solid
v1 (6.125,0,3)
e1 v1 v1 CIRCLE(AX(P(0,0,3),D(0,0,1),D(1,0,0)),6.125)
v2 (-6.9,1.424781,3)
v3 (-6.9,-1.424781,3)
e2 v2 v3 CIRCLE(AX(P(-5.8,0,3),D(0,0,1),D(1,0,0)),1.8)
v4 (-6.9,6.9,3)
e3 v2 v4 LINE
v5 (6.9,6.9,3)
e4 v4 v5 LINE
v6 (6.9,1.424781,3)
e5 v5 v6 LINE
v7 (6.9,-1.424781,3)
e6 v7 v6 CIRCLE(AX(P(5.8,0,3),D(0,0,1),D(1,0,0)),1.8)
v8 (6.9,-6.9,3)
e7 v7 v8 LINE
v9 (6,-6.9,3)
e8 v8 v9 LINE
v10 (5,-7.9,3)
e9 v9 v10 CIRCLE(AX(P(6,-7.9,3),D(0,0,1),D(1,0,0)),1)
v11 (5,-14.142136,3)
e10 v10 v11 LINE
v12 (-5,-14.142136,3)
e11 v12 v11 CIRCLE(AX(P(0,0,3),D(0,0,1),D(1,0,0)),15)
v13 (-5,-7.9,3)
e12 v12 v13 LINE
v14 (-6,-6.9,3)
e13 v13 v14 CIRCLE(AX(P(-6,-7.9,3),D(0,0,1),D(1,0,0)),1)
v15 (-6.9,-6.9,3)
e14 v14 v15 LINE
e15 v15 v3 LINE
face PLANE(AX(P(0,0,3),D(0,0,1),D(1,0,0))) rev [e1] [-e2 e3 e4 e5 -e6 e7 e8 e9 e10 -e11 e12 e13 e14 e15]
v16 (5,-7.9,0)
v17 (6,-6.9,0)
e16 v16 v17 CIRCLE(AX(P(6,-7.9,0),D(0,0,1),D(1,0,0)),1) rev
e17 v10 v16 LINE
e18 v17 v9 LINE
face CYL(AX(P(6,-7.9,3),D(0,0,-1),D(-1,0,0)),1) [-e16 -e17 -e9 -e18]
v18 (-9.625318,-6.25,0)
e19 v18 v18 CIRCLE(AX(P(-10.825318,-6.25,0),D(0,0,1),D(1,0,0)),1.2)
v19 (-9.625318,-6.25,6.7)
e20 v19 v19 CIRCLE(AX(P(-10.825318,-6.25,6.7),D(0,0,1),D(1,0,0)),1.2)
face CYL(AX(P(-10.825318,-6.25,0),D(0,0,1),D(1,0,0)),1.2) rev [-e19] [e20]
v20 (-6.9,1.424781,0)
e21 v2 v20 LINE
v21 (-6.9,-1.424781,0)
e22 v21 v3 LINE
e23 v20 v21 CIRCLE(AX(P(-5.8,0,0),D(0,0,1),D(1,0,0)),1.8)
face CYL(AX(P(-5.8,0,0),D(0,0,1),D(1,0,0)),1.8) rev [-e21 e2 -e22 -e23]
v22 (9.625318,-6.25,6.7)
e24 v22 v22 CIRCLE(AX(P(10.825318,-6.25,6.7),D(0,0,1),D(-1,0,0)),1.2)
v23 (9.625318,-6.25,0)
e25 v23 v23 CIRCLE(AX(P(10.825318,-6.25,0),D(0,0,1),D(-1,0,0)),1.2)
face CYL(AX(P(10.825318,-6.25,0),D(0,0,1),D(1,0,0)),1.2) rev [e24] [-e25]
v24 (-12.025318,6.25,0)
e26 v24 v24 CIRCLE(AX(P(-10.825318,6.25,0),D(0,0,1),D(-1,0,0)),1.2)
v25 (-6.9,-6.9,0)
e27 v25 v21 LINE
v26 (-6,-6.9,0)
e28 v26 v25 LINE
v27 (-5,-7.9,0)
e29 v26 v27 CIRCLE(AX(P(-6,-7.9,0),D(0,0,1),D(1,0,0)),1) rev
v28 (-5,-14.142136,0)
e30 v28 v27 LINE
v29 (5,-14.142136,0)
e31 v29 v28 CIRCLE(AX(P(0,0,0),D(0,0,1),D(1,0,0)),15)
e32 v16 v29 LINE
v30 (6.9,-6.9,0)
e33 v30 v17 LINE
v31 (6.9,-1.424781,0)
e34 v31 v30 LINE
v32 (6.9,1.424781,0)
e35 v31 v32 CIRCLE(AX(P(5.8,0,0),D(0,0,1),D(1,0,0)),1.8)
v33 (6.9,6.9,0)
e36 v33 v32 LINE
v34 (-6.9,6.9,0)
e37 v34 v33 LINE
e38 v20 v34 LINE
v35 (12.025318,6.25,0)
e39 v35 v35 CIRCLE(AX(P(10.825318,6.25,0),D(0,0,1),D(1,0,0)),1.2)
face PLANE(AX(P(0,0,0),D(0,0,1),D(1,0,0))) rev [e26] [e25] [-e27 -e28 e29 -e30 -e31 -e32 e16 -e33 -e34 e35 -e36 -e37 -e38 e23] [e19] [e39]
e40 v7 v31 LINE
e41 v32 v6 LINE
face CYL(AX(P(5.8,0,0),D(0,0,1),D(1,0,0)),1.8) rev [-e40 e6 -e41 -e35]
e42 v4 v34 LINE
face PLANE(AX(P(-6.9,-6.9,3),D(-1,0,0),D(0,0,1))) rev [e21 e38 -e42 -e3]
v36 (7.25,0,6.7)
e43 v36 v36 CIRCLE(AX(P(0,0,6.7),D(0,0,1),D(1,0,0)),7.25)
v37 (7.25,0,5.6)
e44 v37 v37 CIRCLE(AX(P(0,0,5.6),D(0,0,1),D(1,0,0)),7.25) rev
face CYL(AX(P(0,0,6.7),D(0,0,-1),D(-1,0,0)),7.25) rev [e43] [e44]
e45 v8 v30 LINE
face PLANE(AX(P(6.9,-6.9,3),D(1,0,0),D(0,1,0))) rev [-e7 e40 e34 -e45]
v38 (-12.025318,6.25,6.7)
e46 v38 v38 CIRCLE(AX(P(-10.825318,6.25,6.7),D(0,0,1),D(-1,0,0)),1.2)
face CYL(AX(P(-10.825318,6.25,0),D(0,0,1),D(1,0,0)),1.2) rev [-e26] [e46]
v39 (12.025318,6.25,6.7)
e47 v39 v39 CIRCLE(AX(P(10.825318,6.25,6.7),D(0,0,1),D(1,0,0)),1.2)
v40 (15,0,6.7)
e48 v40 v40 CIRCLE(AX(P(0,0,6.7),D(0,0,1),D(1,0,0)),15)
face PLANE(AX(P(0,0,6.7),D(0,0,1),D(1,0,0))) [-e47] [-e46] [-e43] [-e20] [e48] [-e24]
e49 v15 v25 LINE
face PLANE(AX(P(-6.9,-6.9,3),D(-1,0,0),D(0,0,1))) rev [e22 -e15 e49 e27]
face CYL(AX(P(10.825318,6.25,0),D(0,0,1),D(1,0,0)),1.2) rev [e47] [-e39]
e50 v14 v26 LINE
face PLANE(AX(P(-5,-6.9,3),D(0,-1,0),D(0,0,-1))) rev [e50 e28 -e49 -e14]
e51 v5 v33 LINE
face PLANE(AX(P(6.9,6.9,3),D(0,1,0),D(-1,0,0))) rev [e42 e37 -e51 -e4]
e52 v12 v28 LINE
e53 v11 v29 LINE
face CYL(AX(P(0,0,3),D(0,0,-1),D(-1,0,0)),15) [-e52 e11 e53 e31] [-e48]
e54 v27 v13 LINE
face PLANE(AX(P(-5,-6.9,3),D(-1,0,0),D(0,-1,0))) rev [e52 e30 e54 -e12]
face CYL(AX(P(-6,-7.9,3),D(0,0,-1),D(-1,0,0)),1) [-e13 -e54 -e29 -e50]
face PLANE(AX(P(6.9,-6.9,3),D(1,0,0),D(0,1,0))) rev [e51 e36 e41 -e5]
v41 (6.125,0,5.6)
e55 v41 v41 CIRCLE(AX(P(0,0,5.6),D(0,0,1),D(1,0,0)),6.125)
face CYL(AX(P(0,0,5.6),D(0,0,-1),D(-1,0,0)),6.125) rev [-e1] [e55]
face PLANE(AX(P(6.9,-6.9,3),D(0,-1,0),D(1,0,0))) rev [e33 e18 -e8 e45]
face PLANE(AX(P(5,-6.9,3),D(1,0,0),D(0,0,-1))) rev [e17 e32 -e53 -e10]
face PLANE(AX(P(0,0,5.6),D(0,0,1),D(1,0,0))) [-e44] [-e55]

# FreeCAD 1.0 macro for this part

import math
import FreeCAD as App
import Part
import Sketcher

V = App.Vector
Q = App.Units.Quantity


def edges_at(feature, points):
    """Names of the edges that pass closest to the given points."""
    edges = feature.Shape.Edges
    near = lambda p: min(range(len(edges)), key=lambda i: edges[i].distToShape(Part.Vertex(*p))[0])
    return sorted({f"Edge{near(p) + 1}" for p in points})

doc = App.newDocument("Part")
body = doc.addObject("PartDesign::Body", "Body")

# Sketch on XY plane
sketch1 = doc.addObject("Sketcher::SketchObject", "Sketch")
body.addObject(sketch1)
sketch1.AttachmentSupport = (doc.XY_Plane, [""])
sketch1.MapMode = "FlatFace"
sketch1.addGeometry(Part.LineSegment(V(-5, -6.9, 0), V(-6.9, -6.9, 0)), False)
sketch1.addGeometry(Part.LineSegment(V(-6.9, -6.9, 0), V(-6.9, 6.9, 0)), False)
sketch1.addGeometry(Part.LineSegment(V(-6.9, 6.9, 0), V(6.9, 6.9, 0)), False)
sketch1.addGeometry(Part.LineSegment(V(6.9, 6.9, 0), V(6.9, -6.9, 0)), False)
sketch1.addGeometry(Part.LineSegment(V(6.9, -6.9, 0), V(5, -6.9, 0)), False)
sketch1.addGeometry(Part.LineSegment(V(5, -6.9, 0), V(5, -14.1, 0)), False)
sketch1.addGeometry(Part.ArcOfCircle(Part.Circle(V(0, 0, 0), V(0, 0, 1), 15), math.radians(-71), math.radians(251)), False)
sketch1.addGeometry(Part.LineSegment(V(-5, -14.1, 0), V(-5, -6.9, 0)), False)
sketch1.addConstraint(Sketcher.Constraint("Coincident", 0, 2, 1, 1))
sketch1.addConstraint(Sketcher.Constraint("Coincident", 1, 2, 2, 1))
sketch1.addConstraint(Sketcher.Constraint("Coincident", 2, 2, 3, 1))
sketch1.addConstraint(Sketcher.Constraint("Coincident", 3, 2, 4, 1))
sketch1.addConstraint(Sketcher.Constraint("Coincident", 4, 2, 5, 1))
sketch1.addConstraint(Sketcher.Constraint("Coincident", 5, 2, 6, 1))
sketch1.addConstraint(Sketcher.Constraint("Coincident", 6, 2, 7, 1))
sketch1.addConstraint(Sketcher.Constraint("Coincident", 7, 2, 0, 1))
sketch1.addConstraint(Sketcher.Constraint("Horizontal", 0))
sketch1.addConstraint(Sketcher.Constraint("Vertical", 1))
sketch1.addConstraint(Sketcher.Constraint("Horizontal", 2))
sketch1.addConstraint(Sketcher.Constraint("Vertical", 3))
sketch1.addConstraint(Sketcher.Constraint("Horizontal", 4))
sketch1.addConstraint(Sketcher.Constraint("Vertical", 5))
sketch1.addConstraint(Sketcher.Constraint("Vertical", 7))
sketch1.addConstraint(Sketcher.Constraint("Coincident", 6, 3, -1, 1))
sketch1.addConstraint(Sketcher.Constraint("Symmetric", 0, 2, 2, 2, -1, 1))
sketch1.addConstraint(Sketcher.Constraint("Symmetric", 4, 2, 7, 2, -2))
sketch1.addConstraint(Sketcher.Constraint("Equal", 2, 1))
sketch1.addConstraint(Sketcher.Constraint("Radius", 6, Q("15 mm")))
sketch1.addConstraint(Sketcher.Constraint("DistanceX", 0, 2, 0, 1, Q("1.9 mm")))
sketch1.addConstraint(Sketcher.Constraint("DistanceX", 2, 1, 2, 2, Q("13.8 mm")))
pad1 = doc.addObject("PartDesign::Pad", "Pad")
body.addObject(pad1)
pad1.Profile = sketch1
pad1.Length = 3

# Sketch on XY plane
sketch2 = doc.addObject("Sketcher::SketchObject", "Sketch001")
body.addObject(sketch2)
sketch2.AttachmentSupport = (doc.XY_Plane, [""])
sketch2.MapMode = "FlatFace"
sketch2.AttachmentOffset = App.Placement(V(0, 0, 3), App.Rotation())
sketch2.addGeometry(Part.LineSegment(V(-5.8, -1.8, 0), V(5.8, -1.8, 0)), False)
sketch2.addGeometry(Part.ArcOfCircle(Part.Circle(V(5.8, 0, 0), V(0, 0, 1), 1.8), math.radians(-90), math.radians(90)), False)
sketch2.addGeometry(Part.LineSegment(V(5.8, 1.8, 0), V(-5.8, 1.8, 0)), False)
sketch2.addGeometry(Part.ArcOfCircle(Part.Circle(V(-5.8, 0, 0), V(0, 0, 1), 1.8), math.radians(90), math.radians(270)), False)
sketch2.addConstraint(Sketcher.Constraint("Tangent", 0, 2, 1, 1))
sketch2.addConstraint(Sketcher.Constraint("Tangent", 1, 2, 2, 1))
sketch2.addConstraint(Sketcher.Constraint("Tangent", 2, 2, 3, 1))
sketch2.addConstraint(Sketcher.Constraint("Tangent", 3, 2, 0, 1))
sketch2.addConstraint(Sketcher.Constraint("Horizontal", 0))
sketch2.addConstraint(Sketcher.Constraint("Horizontal", 2))
sketch2.addConstraint(Sketcher.Constraint("Symmetric", 1, 3, 3, 3, -1, 1))
sketch2.addConstraint(Sketcher.Constraint("Radius", 1, Q("1.8 mm")))
sketch2.addConstraint(Sketcher.Constraint("DistanceX", 0, 1, 0, 2, Q("11.6 mm")))
pocket1 = doc.addObject("PartDesign::Pocket", "Pocket")
body.addObject(pocket1)
pocket1.Profile = sketch2
pocket1.Type = "ThroughAll"

# Sketch on XY plane
sketch3 = doc.addObject("Sketcher::SketchObject", "Sketch002")
body.addObject(sketch3)
sketch3.AttachmentSupport = (doc.XY_Plane, [""])
sketch3.MapMode = "FlatFace"
sketch3.AttachmentOffset = App.Placement(V(0, 0, 3), App.Rotation())
sketch3.addGeometry(Part.Circle(V(0, 0, 0), V(0, 0, 1), 15), False)
sketch3.addGeometry(Part.Circle(V(0, 0, 0), V(0, 0, 1), 6), False)
sketch3.addConstraint(Sketcher.Constraint("Coincident", 0, 3, -1, 1))
sketch3.addConstraint(Sketcher.Constraint("Coincident", 1, 3, -1, 1))
sketch3.addConstraint(Sketcher.Constraint("Diameter", 0, Q("30 mm")))
sketch3.addConstraint(Sketcher.Constraint("Diameter", 1, Q("12.25 mm")))
pad2 = doc.addObject("PartDesign::Pad", "Pad001")
body.addObject(pad2)
pad2.Profile = sketch3
pad2.Length = 2.6

# Sketch on XY plane
sketch4 = doc.addObject("Sketcher::SketchObject", "Sketch003")
body.addObject(sketch4)
sketch4.AttachmentSupport = (doc.XY_Plane, [""])
sketch4.MapMode = "FlatFace"
sketch4.AttachmentOffset = App.Placement(V(0, 0, 5.6), App.Rotation())
sketch4.addGeometry(Part.Circle(V(0, 0, 0), V(0, 0, 1), 15), False)
sketch4.addGeometry(Part.Circle(V(0, 0, 0), V(0, 0, 1), 7), False)
sketch4.addConstraint(Sketcher.Constraint("Coincident", 0, 3, -1, 1))
sketch4.addConstraint(Sketcher.Constraint("Coincident", 1, 3, -1, 1))
sketch4.addConstraint(Sketcher.Constraint("Diameter", 0, Q("30 mm")))
sketch4.addConstraint(Sketcher.Constraint("Diameter", 1, Q("14.5 mm")))
pad3 = doc.addObject("PartDesign::Pad", "Pad002")
body.addObject(pad3)
pad3.Profile = sketch4
pad3.Length = 1.1

# Sketch on XY plane
sketch5 = doc.addObject("Sketcher::SketchObject", "Sketch004")
body.addObject(sketch5)
sketch5.AttachmentSupport = (doc.XY_Plane, [""])
sketch5.MapMode = "FlatFace"
sketch5.AttachmentOffset = App.Placement(V(0, 0, 6.7), App.Rotation())
sketch5.addGeometry(Part.Circle(V(10.8, 6.2, 0), V(0, 0, 1), 1.2), False)
sketch5.addGeometry(Part.Circle(V(-10.8, 6.2, 0), V(0, 0, 1), 1.2), False)
sketch5.addGeometry(Part.Circle(V(10.8, -6.2, 0), V(0, 0, 1), 1.2), False)
sketch5.addGeometry(Part.Circle(V(-10.8, -6.2, 0), V(0, 0, 1), 1.2), False)
sketch5.addConstraint(Sketcher.Constraint("Equal", 0, 1))
sketch5.addConstraint(Sketcher.Constraint("Equal", 1, 2))
sketch5.addConstraint(Sketcher.Constraint("Equal", 2, 3))
sketch5.addConstraint(Sketcher.Constraint("Symmetric", 1, 3, 2, 3, -1, 1))
sketch5.addConstraint(Sketcher.Constraint("Symmetric", 0, 3, 3, 3, -1, 1))
sketch5.addConstraint(Sketcher.Constraint("Symmetric", 0, 3, 1, 3, -2))
sketch5.addConstraint(Sketcher.Constraint("Diameter", 0, Q("2.4 mm")))
sketch5.addConstraint(Sketcher.Constraint("DistanceY", 2, 3, 0, 3, Q("12.5 mm")))
sketch5.addConstraint(Sketcher.Constraint("DistanceX", -1, 1, 0, 3, Q("10.825318 mm")))
pocket2 = doc.addObject("PartDesign::Pocket", "Pocket001")
body.addObject(pocket2)
pocket2.Profile = sketch5
pocket2.Type = "ThroughAll"
doc.recompute()

fillet = doc.addObject("PartDesign::Fillet", "Fillet")
body.addObject(fillet)
fillet.Base = (pocket2, edges_at(pocket2, [(-5, -6.9, 1.5), (5, -6.9, 1.5)]))
fillet.Radius = 1

doc.recompute()
